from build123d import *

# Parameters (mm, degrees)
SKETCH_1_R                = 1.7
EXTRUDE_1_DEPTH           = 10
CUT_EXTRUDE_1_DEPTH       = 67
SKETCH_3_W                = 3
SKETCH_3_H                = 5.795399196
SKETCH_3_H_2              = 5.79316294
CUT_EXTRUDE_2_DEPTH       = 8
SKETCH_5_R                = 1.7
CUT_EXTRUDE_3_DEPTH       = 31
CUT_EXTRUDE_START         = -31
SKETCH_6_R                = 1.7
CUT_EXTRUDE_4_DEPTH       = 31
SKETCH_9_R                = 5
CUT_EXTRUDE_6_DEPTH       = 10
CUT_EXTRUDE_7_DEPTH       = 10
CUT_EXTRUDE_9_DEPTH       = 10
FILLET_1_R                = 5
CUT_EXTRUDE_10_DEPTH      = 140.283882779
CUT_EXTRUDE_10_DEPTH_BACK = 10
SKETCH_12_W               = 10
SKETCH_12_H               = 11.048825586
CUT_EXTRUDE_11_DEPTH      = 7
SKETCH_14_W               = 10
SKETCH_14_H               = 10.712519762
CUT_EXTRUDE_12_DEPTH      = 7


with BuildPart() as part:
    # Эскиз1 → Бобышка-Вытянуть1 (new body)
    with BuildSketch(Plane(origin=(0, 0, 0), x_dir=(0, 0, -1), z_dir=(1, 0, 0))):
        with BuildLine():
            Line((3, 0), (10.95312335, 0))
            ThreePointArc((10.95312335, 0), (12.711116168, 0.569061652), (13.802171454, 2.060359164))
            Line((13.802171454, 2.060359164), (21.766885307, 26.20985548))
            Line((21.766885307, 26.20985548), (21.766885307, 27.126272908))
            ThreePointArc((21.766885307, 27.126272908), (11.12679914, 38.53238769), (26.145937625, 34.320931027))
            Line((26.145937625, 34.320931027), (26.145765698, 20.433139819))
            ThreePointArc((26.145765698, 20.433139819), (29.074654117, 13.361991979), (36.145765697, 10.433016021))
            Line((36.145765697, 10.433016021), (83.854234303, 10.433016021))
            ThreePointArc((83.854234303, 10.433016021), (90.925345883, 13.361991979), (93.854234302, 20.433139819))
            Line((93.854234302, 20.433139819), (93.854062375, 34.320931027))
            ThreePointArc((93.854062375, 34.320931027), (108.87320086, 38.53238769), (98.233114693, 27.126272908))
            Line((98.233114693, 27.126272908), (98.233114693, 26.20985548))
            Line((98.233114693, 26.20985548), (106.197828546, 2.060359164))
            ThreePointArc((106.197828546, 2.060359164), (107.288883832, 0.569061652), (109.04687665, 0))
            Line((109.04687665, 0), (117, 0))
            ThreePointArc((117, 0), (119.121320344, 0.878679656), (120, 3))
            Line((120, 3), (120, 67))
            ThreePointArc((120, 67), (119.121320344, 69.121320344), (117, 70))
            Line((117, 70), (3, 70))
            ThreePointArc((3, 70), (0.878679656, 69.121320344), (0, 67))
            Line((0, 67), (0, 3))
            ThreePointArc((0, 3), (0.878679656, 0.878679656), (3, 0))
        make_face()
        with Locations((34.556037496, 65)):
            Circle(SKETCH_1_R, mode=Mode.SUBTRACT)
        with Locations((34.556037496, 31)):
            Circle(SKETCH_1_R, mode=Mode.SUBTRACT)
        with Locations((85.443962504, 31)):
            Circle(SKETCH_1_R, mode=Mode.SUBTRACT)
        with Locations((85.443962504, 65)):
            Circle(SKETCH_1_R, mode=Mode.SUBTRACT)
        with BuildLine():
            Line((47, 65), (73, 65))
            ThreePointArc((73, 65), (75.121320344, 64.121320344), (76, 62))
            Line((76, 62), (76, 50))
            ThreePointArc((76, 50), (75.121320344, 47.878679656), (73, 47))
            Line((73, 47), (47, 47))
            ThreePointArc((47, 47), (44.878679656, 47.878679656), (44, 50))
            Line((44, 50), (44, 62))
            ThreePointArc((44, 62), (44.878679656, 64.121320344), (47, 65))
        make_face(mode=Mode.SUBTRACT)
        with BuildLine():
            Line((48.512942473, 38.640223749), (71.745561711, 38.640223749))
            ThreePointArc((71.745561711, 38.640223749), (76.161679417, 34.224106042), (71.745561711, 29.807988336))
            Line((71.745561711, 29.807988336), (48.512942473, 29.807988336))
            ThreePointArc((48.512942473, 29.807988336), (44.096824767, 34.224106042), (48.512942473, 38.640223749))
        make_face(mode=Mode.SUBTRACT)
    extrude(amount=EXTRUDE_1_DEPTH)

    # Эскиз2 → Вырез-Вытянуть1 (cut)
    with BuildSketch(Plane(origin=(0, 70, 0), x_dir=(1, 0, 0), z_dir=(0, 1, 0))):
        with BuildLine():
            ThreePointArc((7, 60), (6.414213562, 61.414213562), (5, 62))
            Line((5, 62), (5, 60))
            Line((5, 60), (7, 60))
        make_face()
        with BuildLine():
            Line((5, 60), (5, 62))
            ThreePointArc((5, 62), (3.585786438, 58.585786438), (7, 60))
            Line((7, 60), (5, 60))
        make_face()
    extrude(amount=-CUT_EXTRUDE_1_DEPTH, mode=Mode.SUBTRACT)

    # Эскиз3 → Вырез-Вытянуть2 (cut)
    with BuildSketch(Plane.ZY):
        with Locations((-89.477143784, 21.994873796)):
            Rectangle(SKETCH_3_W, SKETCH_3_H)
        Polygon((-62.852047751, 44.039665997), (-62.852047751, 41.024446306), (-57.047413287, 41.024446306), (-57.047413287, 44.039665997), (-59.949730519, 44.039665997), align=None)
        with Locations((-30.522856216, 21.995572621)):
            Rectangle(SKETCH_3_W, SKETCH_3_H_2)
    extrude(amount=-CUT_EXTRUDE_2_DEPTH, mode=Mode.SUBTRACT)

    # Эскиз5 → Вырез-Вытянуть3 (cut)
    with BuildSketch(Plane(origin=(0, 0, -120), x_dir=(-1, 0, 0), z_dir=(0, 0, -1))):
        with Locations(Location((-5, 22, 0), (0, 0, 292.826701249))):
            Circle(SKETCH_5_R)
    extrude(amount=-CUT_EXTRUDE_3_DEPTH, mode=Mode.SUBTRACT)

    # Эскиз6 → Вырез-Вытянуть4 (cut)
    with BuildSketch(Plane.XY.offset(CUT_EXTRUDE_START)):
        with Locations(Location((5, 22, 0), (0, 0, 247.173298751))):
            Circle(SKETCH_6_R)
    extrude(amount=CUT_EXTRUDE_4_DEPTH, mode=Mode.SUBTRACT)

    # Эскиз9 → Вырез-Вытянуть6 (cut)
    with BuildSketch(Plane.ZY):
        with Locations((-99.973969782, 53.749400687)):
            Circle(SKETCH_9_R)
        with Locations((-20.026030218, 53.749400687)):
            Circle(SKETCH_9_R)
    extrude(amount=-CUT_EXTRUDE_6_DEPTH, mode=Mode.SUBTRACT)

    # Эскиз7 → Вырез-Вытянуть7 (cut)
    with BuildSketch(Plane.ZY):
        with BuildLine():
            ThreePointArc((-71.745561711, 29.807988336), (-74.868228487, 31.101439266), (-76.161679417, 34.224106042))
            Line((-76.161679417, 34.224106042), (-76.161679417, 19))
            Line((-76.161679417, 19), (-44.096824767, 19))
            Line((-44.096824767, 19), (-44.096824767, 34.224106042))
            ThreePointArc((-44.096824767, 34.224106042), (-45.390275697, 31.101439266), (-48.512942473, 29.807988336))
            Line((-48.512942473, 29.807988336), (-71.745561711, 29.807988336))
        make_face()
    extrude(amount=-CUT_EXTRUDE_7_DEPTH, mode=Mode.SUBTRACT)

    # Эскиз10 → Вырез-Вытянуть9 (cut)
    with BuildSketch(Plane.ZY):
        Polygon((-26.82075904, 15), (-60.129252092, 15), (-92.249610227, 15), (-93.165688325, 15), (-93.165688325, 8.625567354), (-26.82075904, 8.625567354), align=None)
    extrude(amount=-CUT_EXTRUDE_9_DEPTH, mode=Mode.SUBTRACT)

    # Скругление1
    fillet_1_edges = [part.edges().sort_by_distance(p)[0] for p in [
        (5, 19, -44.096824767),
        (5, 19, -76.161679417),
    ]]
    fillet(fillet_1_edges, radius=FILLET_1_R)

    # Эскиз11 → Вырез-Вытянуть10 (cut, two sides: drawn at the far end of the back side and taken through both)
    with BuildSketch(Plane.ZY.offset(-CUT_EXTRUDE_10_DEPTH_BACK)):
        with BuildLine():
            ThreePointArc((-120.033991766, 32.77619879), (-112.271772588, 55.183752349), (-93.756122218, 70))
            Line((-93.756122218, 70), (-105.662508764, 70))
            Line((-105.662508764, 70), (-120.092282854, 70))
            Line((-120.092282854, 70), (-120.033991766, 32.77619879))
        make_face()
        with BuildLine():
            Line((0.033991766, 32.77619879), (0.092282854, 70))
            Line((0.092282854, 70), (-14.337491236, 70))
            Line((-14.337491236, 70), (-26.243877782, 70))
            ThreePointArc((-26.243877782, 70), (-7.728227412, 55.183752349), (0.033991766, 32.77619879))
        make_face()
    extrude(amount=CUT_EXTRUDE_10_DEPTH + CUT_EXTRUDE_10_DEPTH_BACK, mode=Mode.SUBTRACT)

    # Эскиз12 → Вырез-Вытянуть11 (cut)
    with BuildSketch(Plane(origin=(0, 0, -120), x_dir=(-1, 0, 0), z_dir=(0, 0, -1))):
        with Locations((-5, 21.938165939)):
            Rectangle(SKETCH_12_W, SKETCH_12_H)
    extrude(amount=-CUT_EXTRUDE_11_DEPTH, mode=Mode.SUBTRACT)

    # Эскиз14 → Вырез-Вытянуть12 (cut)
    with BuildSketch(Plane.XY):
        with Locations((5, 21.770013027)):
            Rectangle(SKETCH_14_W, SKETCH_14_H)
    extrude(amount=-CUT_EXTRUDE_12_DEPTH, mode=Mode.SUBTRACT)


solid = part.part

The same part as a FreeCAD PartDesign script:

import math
import FreeCAD as App
import Part
import Sketcher


def edges_at(feature, points):
    """Names of the edges that pass closest to the given points."""
    edges = feature.Shape.Edges
    near = lambda p: min(range(len(edges)), key=lambda i: edges[i].distToShape(Part.Vertex(*p))[0])
    return sorted({f"Edge{near(p) + 1}" for p in points})

doc = App.newDocument("Part")
body = doc.addObject("PartDesign::Body", "Body")

# Sketch on YZ plane
sketch1 = doc.addObject("Sketcher::SketchObject", "Sketch")
body.addObject(sketch1)
sketch1.AttachmentSupport = (doc.YZ_Plane, [""])
sketch1.MapMode = "FlatFace"
sketch1.addGeometry([
    Part.LineSegment(App.Vector(0, -3, 0), App.Vector(0, -11, 0)),  # 0
    Part.ArcOfCircle(Part.Circle(App.Vector(3, -11, 0), App.Vector(0, 0, 1), 3), math.radians(180), math.radians(252)),  # 1
    Part.LineSegment(App.Vector(2.1, -13.8, 0), App.Vector(26.2, -21.8, 0)),  # 2
    Part.LineSegment(App.Vector(26.2, -21.8, 0), App.Vector(27.1, -21.8, 0)),  # 3
    Part.ArcOfCircle(Part.Circle(App.Vector(34.3, -18, 0), App.Vector(0, 0, 1), 8.1), math.radians(-90), math.radians(207)),  # 4
    Part.LineSegment(App.Vector(34.3, -26.1, 0), App.Vector(20.4, -26.1, 0)),  # 5
    Part.ArcOfCircle(Part.Circle(App.Vector(20.4, -36.1, 0), App.Vector(0, 0, 1), 10), math.radians(90), math.radians(180)),  # 6
    Part.LineSegment(App.Vector(10.4, -36.1, 0), App.Vector(10.4, -83.9, 0)),  # 7
    Part.ArcOfCircle(Part.Circle(App.Vector(20.4, -83.9, 0), App.Vector(0, 0, 1), 10), math.radians(-180), math.radians(-90)),  # 8
    Part.LineSegment(App.Vector(20.4, -93.9, 0), App.Vector(34.3, -93.9, 0)),  # 9
    Part.ArcOfCircle(Part.Circle(App.Vector(34.3, -102, 0), App.Vector(0, 0, 1), 8.1), math.radians(153), math.radians(450)),  # 10
    Part.LineSegment(App.Vector(27.1, -98.2, 0), App.Vector(26.2, -98.2, 0)),  # 11
    Part.LineSegment(App.Vector(26.2, -98.2, 0), App.Vector(2.1, -106.2, 0)),  # 12
    Part.ArcOfCircle(Part.Circle(App.Vector(3, -109, 0), App.Vector(0, 0, 1), 3), math.radians(108), math.radians(180)),  # 13
    Part.LineSegment(App.Vector(0, -109, 0), App.Vector(0, -117, 0)),  # 14
    Part.ArcOfCircle(Part.Circle(App.Vector(3, -117, 0), App.Vector(0, 0, 1), 3), math.radians(180), math.radians(270)),  # 15
    Part.LineSegment(App.Vector(3, -120, 0), App.Vector(67, -120, 0)),  # 16
    Part.ArcOfCircle(Part.Circle(App.Vector(67, -117, 0), App.Vector(0, 0, 1), 3), math.radians(-90), math.radians(0)),  # 17
    Part.LineSegment(App.Vector(70, -117, 0), App.Vector(70, -3, 0)),  # 18
    Part.ArcOfCircle(Part.Circle(App.Vector(67, -3, 0), App.Vector(0, 0, 1), 3), math.radians(0), math.radians(90)),  # 19
    Part.LineSegment(App.Vector(67, 0, 0), App.Vector(3, 0, 0)),  # 20
    Part.ArcOfCircle(Part.Circle(App.Vector(3, -3, 0), App.Vector(0, 0, 1), 3), math.radians(90), math.radians(180)),  # 21
    Part.Circle(App.Vector(31, -34.6, 0), App.Vector(0, 0, 1), 1.7),  # 22
    Part.ArcOfCircle(Part.Circle(App.Vector(34.2, -48.5, 0), App.Vector(0, 0, 1), 4.4), math.radians(0), math.radians(180)),  # 23
    Part.LineSegment(App.Vector(38.6, -48.5, 0), App.Vector(38.6, -71.7, 0)),  # 24
    Part.ArcOfCircle(Part.Circle(App.Vector(34.2, -71.7, 0), App.Vector(0, 0, 1), 4.4), math.radians(180), math.radians(360)),  # 25
    Part.LineSegment(App.Vector(29.8, -71.7, 0), App.Vector(29.8, -48.5, 0)),  # 26
    Part.Circle(App.Vector(31, -85.4, 0), App.Vector(0, 0, 1), 1.7),  # 27
    Part.ArcOfCircle(Part.Circle(App.Vector(62, -47, 0), App.Vector(0, 0, 1), 3), math.radians(0), math.radians(90)),  # 28
    Part.LineSegment(App.Vector(65, -47, 0), App.Vector(65, -73, 0)),  # 29
    Part.ArcOfCircle(Part.Circle(App.Vector(62, -73, 0), App.Vector(0, 0, 1), 3), math.radians(-90), math.radians(0)),  # 30
    Part.LineSegment(App.Vector(62, -76, 0), App.Vector(50, -76, 0)),  # 31
    Part.ArcOfCircle(Part.Circle(App.Vector(50, -73, 0), App.Vector(0, 0, 1), 3), math.radians(180), math.radians(270)),  # 32
    Part.LineSegment(App.Vector(47, -73, 0), App.Vector(47, -47, 0)),  # 33
    Part.ArcOfCircle(Part.Circle(App.Vector(50, -47, 0), App.Vector(0, 0, 1), 3), math.radians(90), math.radians(180)),  # 34
    Part.LineSegment(App.Vector(50, -44, 0), App.Vector(62, -44, 0)),  # 35
    Part.Circle(App.Vector(65, -34.6, 0), App.Vector(0, 0, 1), 1.7),  # 36
    Part.Circle(App.Vector(65, -85.4, 0), App.Vector(0, 0, 1), 1.7),  # 37
], False)
sketch1.addConstraint([
    Sketcher.Constraint("Tangent", 0, 2, 1, 1),
    Sketcher.Constraint("Tangent", 1, 2, 2, 1),
    Sketcher.Constraint("Coincident", 2, 2, 3, 1),
    Sketcher.Constraint("Coincident", 3, 2, 4, 2),
    Sketcher.Constraint("Tangent", 4, 1, 5, 1),
    Sketcher.Constraint("Tangent", 5, 2, 6, 1),
    Sketcher.Constraint("Tangent", 6, 2, 7, 1),
    Sketcher.Constraint("Tangent", 7, 2, 8, 1),
    Sketcher.Constraint("Tangent", 8, 2, 9, 1),
    Sketcher.Constraint("Tangent", 9, 2, 10, 2),
    Sketcher.Constraint("Coincident", 10, 1, 11, 1),
    Sketcher.Constraint("Coincident", 11, 2, 12, 1),
    Sketcher.Constraint("Tangent", 12, 2, 13, 1),
    Sketcher.Constraint("Tangent", 13, 2, 14, 1),
    Sketcher.Constraint("Tangent", 14, 2, 15, 1),
    Sketcher.Constraint("Tangent", 15, 2, 16, 1),
    Sketcher.Constraint("Tangent", 16, 2, 17, 1),
    Sketcher.Constraint("Tangent", 17, 2, 18, 1),
    Sketcher.Constraint("Tangent", 18, 2, 19, 1),
    Sketcher.Constraint("Tangent", 19, 2, 20, 1),
    Sketcher.Constraint("Tangent", 20, 2, 21, 1),
    Sketcher.Constraint("Tangent", 21, 2, 0, 1),
    Sketcher.Constraint("Tangent", 23, 1, 24, 1),
    Sketcher.Constraint("Tangent", 24, 2, 25, 2),
    Sketcher.Constraint("Tangent", 25, 1, 26, 1),
    Sketcher.Constraint("Tangent", 26, 2, 23, 2),
    Sketcher.Constraint("Tangent", 28, 1, 29, 1),
    Sketcher.Constraint("Tangent", 29, 2, 30, 2),
    Sketcher.Constraint("Tangent", 30, 1, 31, 1),
    Sketcher.Constraint("Tangent", 31, 2, 32, 2),
    Sketcher.Constraint("Tangent", 32, 1, 33, 1),
    Sketcher.Constraint("Tangent", 33, 2, 34, 2),
    Sketcher.Constraint("Tangent", 34, 1, 35, 1),
    Sketcher.Constraint("Tangent", 35, 2, 28, 2),
    Sketcher.Constraint("Vertical", 0),
    Sketcher.Constraint("Horizontal", 3),
    Sketcher.Constraint("Vertical", 7),
    Sketcher.Constraint("Horizontal", 11),
    Sketcher.Constraint("Vertical", 14),
    Sketcher.Constraint("Horizontal", 16),
    Sketcher.Constraint("Vertical", 18),
    Sketcher.Constraint("Horizontal", 20),
    Sketcher.Constraint("Vertical", 24),
    Sketcher.Constraint("Vertical", 26),
    Sketcher.Constraint("Vertical", 29),
    Sketcher.Constraint("Horizontal", 31),
    Sketcher.Constraint("Vertical", 33),
    Sketcher.Constraint("Horizontal", 35),
    Sketcher.Constraint("Equal", 6, 8),
    Sketcher.Constraint("Equal", 4, 10),
    Sketcher.Constraint("Equal", 1, 13),
    Sketcher.Constraint("Equal", 13, 15),
    Sketcher.Constraint("Equal", 15, 17),
    Sketcher.Constraint("Equal", 17, 19),
    Sketcher.Constraint("Equal", 19, 21),
    Sketcher.Constraint("Equal", 22, 27),
    Sketcher.Constraint("Equal", 21, 28),
    Sketcher.Constraint("Equal", 28, 30),
    Sketcher.Constraint("Equal", 30, 32),
    Sketcher.Constraint("Equal", 32, 34),
    Sketcher.Constraint("Equal", 27, 36),
    Sketcher.Constraint("Equal", 36, 37),
    Sketcher.Constraint("PointOnObject", 0, 2, -2),
    Sketcher.Constraint("PointOnObject", 13, 2, -2),
    Sketcher.Constraint("PointOnObject", 19, 2, -1),
    Sketcher.Constraint("Horizontal", 22, 3, 36, 3),
    Sketcher.Constraint("Horizontal", 27, 3, 37, 3),
    Sketcher.Constraint("Vertical", 4, 3, 10, 3),
    Sketcher.Constraint("Vertical", 22, 3, 27, 3),
    Sketcher.Constraint("Vertical", 36, 3, 37, 3),
    Sketcher.Constraint("Vertical", 5, 2, 8, 2),
    Sketcher.Constraint("Vertical", 3, 2, 10, 1),
    Sketcher.Constraint("Vertical", 2, 2, 11, 2),
    Sketcher.Constraint("Vertical", 1, 2, 12, 2),
    Sketcher.Constraint("Vertical", 37, 3, 28, 1),
    Sketcher.Constraint("Equal", 0, 14),
    Sketcher.Constraint("Radius", 1, 3.0),
    Sketcher.Constraint("Radius", 6, 10.0),
    Sketcher.Constraint("Diameter", 22, 3.4),
    Sketcher.Constraint("Radius", 4, 8.1),
    Sketcher.Constraint("DistanceX", 16, 1, 16, 2, 64.0),
    Sketcher.Constraint("DistanceX", 31, 2, 31, 1, 12.0),
    Sketcher.Constraint("DistanceY", 18, 1, 18, 2, 114.0),
    Sketcher.Constraint("DistanceY", 29, 2, 29, 1, 26.0),
    Sketcher.Constraint("DistanceX", -1, 1, 22, 3, 31.0),
    Sketcher.Constraint("DistanceX", -1, 1, 28, 3, 62.0),
    Sketcher.Constraint("DistanceY", 28, 3, -1, 1, 47.0),
    Sketcher.Constraint("Radius", 23, 4.416118),
    Sketcher.Constraint("DistanceY", 7, 2, 7, 1, 47.708469),
    Sketcher.Constraint("DistanceY", 24, 2, 24, 1, 23.232619),
    Sketcher.Constraint("DistanceY", 22, 3, 4, 3, 16.5101),
    Sketcher.Constraint("DistanceY", 10, 3, 25, 3, 30.208501),
    Sketcher.Constraint("DistanceY", 27, 3, 25, 3, 13.698401),
    Sketcher.Constraint("DistanceX", 4, 1, 4, 3, 0.0001),
    Sketcher.Constraint("Distance", 5, 13.887791),
    Sketcher.Constraint("DistanceX", 3, 1, 3, 2, 0.916417),
    Sketcher.Constraint("DistanceY", 0, 2, 0, 1, 7.953123),
    Sketcher.Constraint("DistanceX", -1, 1, 4, 3, 34.321031),
    Sketcher.Constraint("DistanceX", -1, 1, 1, 2, 2.060359),
    Sketcher.Constraint("DistanceX", -1, 1, 25, 1, 29.807988),
])
pad1 = doc.addObject("PartDesign::Pad", "Pad")
body.addObject(pad1)
pad1.Profile = sketch1
pad1.Length = 10

# Sketch on XZ plane
sketch2 = doc.addObject("Sketcher::SketchObject", "Sketch001")
body.addObject(sketch2)
sketch2.AttachmentSupport = (doc.XZ_Plane, [""])
sketch2.MapMode = "FlatFace"
sketch2.AttachmentOffset = App.Placement(App.Vector(0, 0, -70), App.Rotation())
sketch2.addGeometry([
    Part.ArcOfCircle(Part.Circle(App.Vector(5, -60, 0), App.Vector(0, 0, 1), 2), math.radians(-90), math.radians(0)),
    Part.ArcOfCircle(Part.Circle(App.Vector(5, -60, 0), App.Vector(0, 0, 1), 2), math.radians(0), math.radians(270)),
], False)
sketch2.addConstraint([
    Sketcher.Constraint("Tangent", 0, 1, 1, 2),
    Sketcher.Constraint("Coincident", 1, 1, 0, 2),
    Sketcher.Constraint("Horizontal", 0, 3, 1, 1),
    Sketcher.Constraint("Vertical", 1, 3, 0, 1),
    Sketcher.Constraint("Radius", 0, 2.0),
    Sketcher.Constraint("DistanceX", -1, 1, 0, 3, 5.0),
    Sketcher.Constraint("DistanceY", 0, 3, -1, 1, 60.0),
])
pocket1 = doc.addObject("PartDesign::Pocket", "Pocket")
body.addObject(pocket1)
pocket1.Profile = sketch2
pocket1.Length = 67
pocket1.Reversed = True

# Sketch on YZ plane
sketch3 = doc.addObject("Sketcher::SketchObject", "Sketch002")
body.addObject(sketch3)
sketch3.AttachmentSupport = (doc.YZ_Plane, [""])
sketch3.MapMode = "FlatFace"
sketch3.addGeometry([
    Part.LineSegment(App.Vector(24.9, -91, 0), App.Vector(19.1, -91, 0)),  # 0
    Part.LineSegment(App.Vector(19.1, -91, 0), App.Vector(19.1, -88, 0)),  # 1
    Part.LineSegment(App.Vector(19.1, -88, 0), App.Vector(24.9, -88, 0)),  # 2
    Part.LineSegment(App.Vector(24.9, -88, 0), App.Vector(24.9, -91, 0)),  # 3
    Part.LineSegment(App.Vector(44, -62.9, 0), App.Vector(41, -62.9, 0)),  # 4
    Part.LineSegment(App.Vector(41, -62.9, 0), App.Vector(41, -57, 0)),  # 5
    Part.LineSegment(App.Vector(41, -57, 0), App.Vector(44, -57, 0)),  # 6
    Part.LineSegment(App.Vector(44, -57, 0), App.Vector(44, -62.9, 0)),  # 7
    Part.LineSegment(App.Vector(24.9, -32, 0), App.Vector(19.1, -32, 0)),  # 8
    Part.LineSegment(App.Vector(19.1, -32, 0), App.Vector(19.1, -29, 0)),  # 9
    Part.LineSegment(App.Vector(19.1, -29, 0), App.Vector(24.9, -29, 0)),  # 10
    Part.LineSegment(App.Vector(24.9, -29, 0), App.Vector(24.9, -32, 0)),  # 11
], False)
sketch3.addConstraint([
    Sketcher.Constraint("Coincident", 0, 2, 1, 1),
    Sketcher.Constraint("Coincident", 1, 2, 2, 1),
    Sketcher.Constraint("Coincident", 2, 2, 3, 1),
    Sketcher.Constraint("Coincident", 3, 2, 0, 1),
    Sketcher.Constraint("Coincident", 4, 2, 5, 1),
    Sketcher.Constraint("Coincident", 5, 2, 6, 1),
    Sketcher.Constraint("Coincident", 6, 2, 7, 1),
    Sketcher.Constraint("Coincident", 7, 2, 4, 1),
    Sketcher.Constraint("Coincident", 8, 2, 9, 1),
    Sketcher.Constraint("Coincident", 9, 2, 10, 1),
    Sketcher.Constraint("Coincident", 10, 2, 11, 1),
    Sketcher.Constraint("Coincident", 11, 2, 8, 1),
    Sketcher.Constraint("Horizontal", 0),
    Sketcher.Constraint("Vertical", 1),
    Sketcher.Constraint("Horizontal", 2),
    Sketcher.Constraint("Vertical", 3),
    Sketcher.Constraint("Horizontal", 4),
    Sketcher.Constraint("Vertical", 5),
    Sketcher.Constraint("Horizontal", 6),
    Sketcher.Constraint("Vertical", 7),
    Sketcher.Constraint("Horizontal", 8),
    Sketcher.Constraint("Vertical", 9),
    Sketcher.Constraint("Horizontal", 10),
    Sketcher.Constraint("Vertical", 11),
    Sketcher.Constraint("Equal", 3, 9),
    Sketcher.Constraint("DistanceY", 1, 1, 1, 2, 3.0),
    Sketcher.Constraint("DistanceX", 0, 2, 0, 1, 5.795399),
    Sketcher.Constraint("DistanceX", 4, 2, 4, 1, 3.01522),
    Sketcher.Constraint("DistanceX", 8, 2, 8, 1, 5.793163),
    Sketcher.Constraint("DistanceY", 5, 1, 5, 2, 5.804634),
    Sketcher.Constraint("DistanceX", -1, 1, 8, 2, 19.098991),
    Sketcher.Constraint("DistanceY", 2, 2, 5, 2, 30.92973),
    Sketcher.Constraint("DistanceX", 1, 2, 6, 2, 24.942492),
    Sketcher.Constraint("DistanceY", 4, 2, 8, 2, 30.829192),
    Sketcher.Constraint("DistanceX", 10, 2, 6, 2, 19.147512),
    Sketcher.Constraint("DistanceY", 0, 2, -1, 1, 90.977144),
])
pocket2 = doc.addObject("PartDesign::Pocket", "Pocket001")
body.addObject(pocket2)
pocket2.Profile = sketch3
pocket2.Length = 8
pocket2.Reversed = True

# Sketch on XY plane
sketch4 = doc.addObject("Sketcher::SketchObject", "Sketch003")
body.addObject(sketch4)
sketch4.AttachmentSupport = (doc.XY_Plane, [""])
sketch4.MapMode = "FlatFace"
sketch4.AttachmentOffset = App.Placement(App.Vector(0, 0, -120), App.Rotation())
sketch4.addGeometry(Part.Circle(App.Vector(5, 22, 0), App.Vector(0, 0, 1), 1.7), False)
sketch4.addConstraint([
    Sketcher.Constraint("Diameter", 0, 3.4),
    Sketcher.Constraint("DistanceX", -1, 1, 0, 3, 5.0),
    Sketcher.Constraint("DistanceY", -1, 1, 0, 3, 22.0),
])
pocket3 = doc.addObject("PartDesign::Pocket", "Pocket002")
body.addObject(pocket3)
pocket3.Profile = sketch4
pocket3.Length = 31
pocket3.Reversed = True

# Sketch on XY plane
sketch5 = doc.addObject("Sketcher::SketchObject", "Sketch004")
body.addObject(sketch5)
sketch5.AttachmentSupport = (doc.XY_Plane, [""])
sketch5.MapMode = "FlatFace"
sketch5.AttachmentOffset = App.Placement(App.Vector(0, 0, -31), App.Rotation())
sketch5.addGeometry(Part.Circle(App.Vector(5, 22, 0), App.Vector(0, 0, 1), 1.7), False)
sketch5.addConstraint([
    Sketcher.Constraint("Diameter", 0, 3.4),
    Sketcher.Constraint("DistanceX", -1, 1, 0, 3, 5.0),
    Sketcher.Constraint("DistanceY", -1, 1, 0, 3, 22.0),
])
pocket4 = doc.addObject("PartDesign::Pocket", "Pocket003")
body.addObject(pocket4)
pocket4.Profile = sketch5
pocket4.Length = 31
pocket4.Reversed = True

# Sketch on YZ plane
sketch6 = doc.addObject("Sketcher::SketchObject", "Sketch005")
body.addObject(sketch6)
sketch6.AttachmentSupport = (doc.YZ_Plane, [""])
sketch6.MapMode = "FlatFace"
sketch6.addGeometry([
    Part.Circle(App.Vector(54, -100, 0), App.Vector(0, 0, 1), 5),
    Part.Circle(App.Vector(54, -20, 0), App.Vector(0, 0, 1), 5),
], False)
sketch6.addConstraint([
    Sketcher.Constraint("Equal", 0, 1),
    Sketcher.Constraint("Vertical", 0, 3, 1, 3),
    Sketcher.Constraint("Diameter", 0, 10.0),
    Sketcher.Constraint("DistanceX", -1, 1, 0, 3, 53.749401),
    Sketcher.Constraint("DistanceY", 0, 3, -1, 1, 99.97397),
    Sketcher.Constraint("DistanceY", 1, 3, -1, 1, 20.02603),
])
pocket5 = doc.addObject("PartDesign::Pocket", "Pocket004")
body.addObject(pocket5)
pocket5.Profile = sketch6
pocket5.Length = 10
pocket5.Reversed = True

# Sketch on YZ plane
sketch7 = doc.addObject("Sketcher::SketchObject", "Sketch006")
body.addObject(sketch7)
sketch7.AttachmentSupport = (doc.YZ_Plane, [""])
sketch7.MapMode = "FlatFace"
sketch7.addGeometry([
    Part.ArcOfCircle(Part.Circle(App.Vector(34.2, -71.7, 0), App.Vector(0, 0, 1), 4.4), math.radians(-180), math.radians(-90)),  # 0
    Part.LineSegment(App.Vector(34.2, -76.2, 0), App.Vector(19, -76.2, 0)),  # 1
    Part.LineSegment(App.Vector(19, -76.2, 0), App.Vector(19, -44.1, 0)),  # 2
    Part.LineSegment(App.Vector(19, -44.1, 0), App.Vector(34.2, -44.1, 0)),  # 3
    Part.ArcOfCircle(Part.Circle(App.Vector(34.2, -48.5, 0), App.Vector(0, 0, 1), 4.4), math.radians(90), math.radians(180)),  # 4
    Part.LineSegment(App.Vector(29.8, -48.5, 0), App.Vector(29.8, -71.7, 0)),  # 5
], False)
sketch7.addConstraint([
    Sketcher.Constraint("Tangent", 0, 2, 1, 1),
    Sketcher.Constraint("Coincident", 1, 2, 2, 1),
    Sketcher.Constraint("Coincident", 2, 2, 3, 1),
    Sketcher.Constraint("Tangent", 3, 2, 4, 1),
    Sketcher.Constraint("Tangent", 4, 2, 5, 1),
    Sketcher.Constraint("Tangent", 5, 2, 0, 1),
    Sketcher.Constraint("Horizontal", 1),
    Sketcher.Constraint("Vertical", 2),
    Sketcher.Constraint("Horizontal", 3),
    Sketcher.Constraint("Vertical", 5),
    Sketcher.Constraint("Equal", 0, 4),
    Sketcher.Constraint("DistanceX", -1, 1, 1, 2, 19.0),
    Sketcher.Constraint("Radius", 0, 4.416118),
    Sketcher.Constraint("DistanceY", 5, 2, 5, 1, 23.232619),
    Sketcher.Constraint("DistanceX", 1, 2, 1, 1, 15.224106),
    Sketcher.Constraint("DistanceY", 0, 3, -1, 1, 71.745562),
])
pocket6 = doc.addObject("PartDesign::Pocket", "Pocket005")
body.addObject(pocket6)
pocket6.Profile = sketch7
pocket6.Length = 10
pocket6.Reversed = True

# Sketch on YZ plane
sketch8 = doc.addObject("Sketcher::SketchObject", "Sketch007")
body.addObject(sketch8)
sketch8.AttachmentSupport = (doc.YZ_Plane, [""])
sketch8.MapMode = "FlatFace"
sketch8.addGeometry([
    Part.LineSegment(App.Vector(15, -27, 0), App.Vector(15, -93, 0)),
    Part.LineSegment(App.Vector(15, -93, 0), App.Vector(9, -93, 0)),
    Part.LineSegment(App.Vector(9, -93, 0), App.Vector(9, -27, 0)),
    Part.LineSegment(App.Vector(9, -27, 0), App.Vector(15, -27, 0)),
], False)
sketch8.addConstraint([
    Sketcher.Constraint("Coincident", 0, 2, 1, 1),
    Sketcher.Constraint("Coincident", 1, 2, 2, 1),
    Sketcher.Constraint("Coincident", 2, 2, 3, 1),
    Sketcher.Constraint("Coincident", 3, 2, 0, 1),
    Sketcher.Constraint("Vertical", 0),
    Sketcher.Constraint("Horizontal", 1),
    Sketcher.Constraint("Vertical", 2),
    Sketcher.Constraint("Horizontal", 3),
    Sketcher.Constraint("DistanceX", -1, 1, 0, 2, 15.0),
    Sketcher.Constraint("DistanceY", 0, 2, 0, 1, 66.344929),
    Sketcher.Constraint("DistanceX", 1, 2, 1, 1, 6.374433),
    Sketcher.Constraint("DistanceY", 0, 2, -1, 1, 93.165688),
])
pocket7 = doc.addObject("PartDesign::Pocket", "Pocket006")
body.addObject(pocket7)
pocket7.Profile = sketch8
pocket7.Length = 10
pocket7.Reversed = True
doc.recompute()

fillet = doc.addObject("PartDesign::Fillet", "Fillet")
body.addObject(fillet)
fillet.Base = (pocket7, edges_at(pocket7, [(5, 19, -44.097), (5, 19, -76.162)]))
fillet.Radius = 5

# Sketch on YZ plane
sketch9 = doc.addObject("Sketcher::SketchObject", "Sketch008")
body.addObject(sketch9)
sketch9.AttachmentSupport = (doc.YZ_Plane, [""])
sketch9.MapMode = "FlatFace"
sketch9.addGeometry([
    Part.ArcOfCircle(Part.Circle(App.Vector(31, -77, 0), App.Vector(0, 0, 1), 43), math.radians(-87), math.radians(-23)),  # 0
    Part.LineSegment(App.Vector(70, -94, 0), App.Vector(70, -120, 0)),  # 1
    Part.LineSegment(App.Vector(70, -120, 0), App.Vector(33, -120, 0)),  # 2
    Part.LineSegment(App.Vector(33, 0, 0), App.Vector(70, 0, 0)),  # 3
    Part.LineSegment(App.Vector(70, 0, 0), App.Vector(70, -26, 0)),  # 4
    Part.ArcOfCircle(Part.Circle(App.Vector(31, -43, 0), App.Vector(0, 0, 1), 43), math.radians(23), math.radians(87)),  # 5
], False)
sketch9.addConstraint([
    Sketcher.Constraint("Coincident", 0, 2, 1, 1),
    Sketcher.Constraint("Coincident", 1, 2, 2, 1),
    Sketcher.Constraint("Coincident", 2, 2, 0, 1),
    Sketcher.Constraint("Coincident", 3, 2, 4, 1),
    Sketcher.Constraint("Coincident", 4, 2, 5, 1),
    Sketcher.Constraint("Coincident", 5, 2, 3, 1),
    Sketcher.Constraint("Vertical", 1),
    Sketcher.Constraint("Vertical", 4),
    Sketcher.Constraint("Equal", 0, 5),
    Sketcher.Constraint("Vertical", 0, 3, 5, 3),
    Sketcher.Constraint("Vertical", 1, 2, 3, 2),
    Sketcher.Constraint("Vertical", 2, 2, 5, 2),
    Sketcher.Constraint("Equal", 1, 4),
    Sketcher.Constraint("DistanceX", -1, 1, 0, 2, 70.0),
    Sketcher.Constraint("Radius", 0, 42.722107),
    Sketcher.Constraint("DistanceY", 1, 2, 1, 1, 26.336161),
    Sketcher.Constraint("DistanceX", -1, 1, 2, 2, 32.776199),
    Sketcher.Constraint("DistanceY", 0, 2, 5, 3, 51.126298),
    Sketcher.Constraint("DistanceY", 2, 2, -1, 1, 120.033992),
    Sketcher.Constraint("DistanceY", -1, 1, 5, 2, 0.033992),
])
pocket8 = doc.addObject("PartDesign::Pocket", "Pocket007")
body.addObject(pocket8)
pocket8.Profile = sketch9
pocket8.Type = "ThroughAll"
pocket8.Midplane = True

# Sketch on XY plane
sketch10 = doc.addObject("Sketcher::SketchObject", "Sketch009")
body.addObject(sketch10)
sketch10.AttachmentSupport = (doc.XY_Plane, [""])
sketch10.MapMode = "FlatFace"
sketch10.AttachmentOffset = App.Placement(App.Vector(0, 0, -120), App.Rotation())
sketch10.addGeometry([
    Part.LineSegment(App.Vector(10, 27, 0), App.Vector(10, 16, 0)),
    Part.LineSegment(App.Vector(10, 16, 0), App.Vector(0, 16, 0)),
    Part.LineSegment(App.Vector(0, 16, 0), App.Vector(0, 27, 0)),
    Part.LineSegment(App.Vector(0, 27, 0), App.Vector(10, 27, 0)),
], False)
sketch10.addConstraint([
    Sketcher.Constraint("Coincident", 0, 2, 1, 1),
    Sketcher.Constraint("Coincident", 1, 2, 2, 1),
    Sketcher.Constraint("Coincident", 2, 2, 3, 1),
    Sketcher.Constraint("Coincident", 3, 2, 0, 1),
    Sketcher.Constraint("Vertical", 0),
    Sketcher.Constraint("Horizontal", 1),
    Sketcher.Constraint("Vertical", 2),
    Sketcher.Constraint("Horizontal", 3),
    Sketcher.Constraint("PointOnObject", 1, 2, -2),
    Sketcher.Constraint("DistanceX", 1, 2, 1, 1, 10.0),
    Sketcher.Constraint("DistanceY", 0, 2, 0, 1, 11.048826),
    Sketcher.Constraint("DistanceY", -1, 1, 2, 2, 27.462579),
])
pocket9 = doc.addObject("PartDesign::Pocket", "Pocket008")
body.addObject(pocket9)
pocket9.Profile = sketch10
pocket9.Length = 7
pocket9.Reversed = True

# Sketch on XY plane
sketch11 = doc.addObject("Sketcher::SketchObject", "Sketch010")
body.addObject(sketch11)
sketch11.AttachmentSupport = (doc.XY_Plane, [""])
sketch11.MapMode = "FlatFace"
sketch11.addGeometry([
    Part.LineSegment(App.Vector(0, 27, 0), App.Vector(0, 16, 0)),
    Part.LineSegment(App.Vector(0, 16, 0), App.Vector(10, 16, 0)),
    Part.LineSegment(App.Vector(10, 16, 0), App.Vector(10, 27, 0)),
    Part.LineSegment(App.Vector(10, 27, 0), App.Vector(0, 27, 0)),
], False)
sketch11.addConstraint([
    Sketcher.Constraint("Coincident", 0, 2, 1, 1),
    Sketcher.Constraint("Coincident", 1, 2, 2, 1),
    Sketcher.Constraint("Coincident", 2, 2, 3, 1),
    Sketcher.Constraint("Coincident", 3, 2, 0, 1),
    Sketcher.Constraint("Vertical", 0),
    Sketcher.Constraint("Horizontal", 1),
    Sketcher.Constraint("Vertical", 2),
    Sketcher.Constraint("Horizontal", 3),
    Sketcher.Constraint("PointOnObject", 0, 2, -2),
    Sketcher.Constraint("DistanceX", 1, 1, 1, 2, 10.0),
    Sketcher.Constraint("DistanceY", 0, 2, 0, 1, 10.71252),
    Sketcher.Constraint("DistanceY", -1, 1, 0, 2, 16.413753),
])
pocket10 = doc.addObject("PartDesign::Pocket", "Pocket009")
body.addObject(pocket10)
pocket10.Profile = sketch11
pocket10.Length = 7

doc.recompute()
